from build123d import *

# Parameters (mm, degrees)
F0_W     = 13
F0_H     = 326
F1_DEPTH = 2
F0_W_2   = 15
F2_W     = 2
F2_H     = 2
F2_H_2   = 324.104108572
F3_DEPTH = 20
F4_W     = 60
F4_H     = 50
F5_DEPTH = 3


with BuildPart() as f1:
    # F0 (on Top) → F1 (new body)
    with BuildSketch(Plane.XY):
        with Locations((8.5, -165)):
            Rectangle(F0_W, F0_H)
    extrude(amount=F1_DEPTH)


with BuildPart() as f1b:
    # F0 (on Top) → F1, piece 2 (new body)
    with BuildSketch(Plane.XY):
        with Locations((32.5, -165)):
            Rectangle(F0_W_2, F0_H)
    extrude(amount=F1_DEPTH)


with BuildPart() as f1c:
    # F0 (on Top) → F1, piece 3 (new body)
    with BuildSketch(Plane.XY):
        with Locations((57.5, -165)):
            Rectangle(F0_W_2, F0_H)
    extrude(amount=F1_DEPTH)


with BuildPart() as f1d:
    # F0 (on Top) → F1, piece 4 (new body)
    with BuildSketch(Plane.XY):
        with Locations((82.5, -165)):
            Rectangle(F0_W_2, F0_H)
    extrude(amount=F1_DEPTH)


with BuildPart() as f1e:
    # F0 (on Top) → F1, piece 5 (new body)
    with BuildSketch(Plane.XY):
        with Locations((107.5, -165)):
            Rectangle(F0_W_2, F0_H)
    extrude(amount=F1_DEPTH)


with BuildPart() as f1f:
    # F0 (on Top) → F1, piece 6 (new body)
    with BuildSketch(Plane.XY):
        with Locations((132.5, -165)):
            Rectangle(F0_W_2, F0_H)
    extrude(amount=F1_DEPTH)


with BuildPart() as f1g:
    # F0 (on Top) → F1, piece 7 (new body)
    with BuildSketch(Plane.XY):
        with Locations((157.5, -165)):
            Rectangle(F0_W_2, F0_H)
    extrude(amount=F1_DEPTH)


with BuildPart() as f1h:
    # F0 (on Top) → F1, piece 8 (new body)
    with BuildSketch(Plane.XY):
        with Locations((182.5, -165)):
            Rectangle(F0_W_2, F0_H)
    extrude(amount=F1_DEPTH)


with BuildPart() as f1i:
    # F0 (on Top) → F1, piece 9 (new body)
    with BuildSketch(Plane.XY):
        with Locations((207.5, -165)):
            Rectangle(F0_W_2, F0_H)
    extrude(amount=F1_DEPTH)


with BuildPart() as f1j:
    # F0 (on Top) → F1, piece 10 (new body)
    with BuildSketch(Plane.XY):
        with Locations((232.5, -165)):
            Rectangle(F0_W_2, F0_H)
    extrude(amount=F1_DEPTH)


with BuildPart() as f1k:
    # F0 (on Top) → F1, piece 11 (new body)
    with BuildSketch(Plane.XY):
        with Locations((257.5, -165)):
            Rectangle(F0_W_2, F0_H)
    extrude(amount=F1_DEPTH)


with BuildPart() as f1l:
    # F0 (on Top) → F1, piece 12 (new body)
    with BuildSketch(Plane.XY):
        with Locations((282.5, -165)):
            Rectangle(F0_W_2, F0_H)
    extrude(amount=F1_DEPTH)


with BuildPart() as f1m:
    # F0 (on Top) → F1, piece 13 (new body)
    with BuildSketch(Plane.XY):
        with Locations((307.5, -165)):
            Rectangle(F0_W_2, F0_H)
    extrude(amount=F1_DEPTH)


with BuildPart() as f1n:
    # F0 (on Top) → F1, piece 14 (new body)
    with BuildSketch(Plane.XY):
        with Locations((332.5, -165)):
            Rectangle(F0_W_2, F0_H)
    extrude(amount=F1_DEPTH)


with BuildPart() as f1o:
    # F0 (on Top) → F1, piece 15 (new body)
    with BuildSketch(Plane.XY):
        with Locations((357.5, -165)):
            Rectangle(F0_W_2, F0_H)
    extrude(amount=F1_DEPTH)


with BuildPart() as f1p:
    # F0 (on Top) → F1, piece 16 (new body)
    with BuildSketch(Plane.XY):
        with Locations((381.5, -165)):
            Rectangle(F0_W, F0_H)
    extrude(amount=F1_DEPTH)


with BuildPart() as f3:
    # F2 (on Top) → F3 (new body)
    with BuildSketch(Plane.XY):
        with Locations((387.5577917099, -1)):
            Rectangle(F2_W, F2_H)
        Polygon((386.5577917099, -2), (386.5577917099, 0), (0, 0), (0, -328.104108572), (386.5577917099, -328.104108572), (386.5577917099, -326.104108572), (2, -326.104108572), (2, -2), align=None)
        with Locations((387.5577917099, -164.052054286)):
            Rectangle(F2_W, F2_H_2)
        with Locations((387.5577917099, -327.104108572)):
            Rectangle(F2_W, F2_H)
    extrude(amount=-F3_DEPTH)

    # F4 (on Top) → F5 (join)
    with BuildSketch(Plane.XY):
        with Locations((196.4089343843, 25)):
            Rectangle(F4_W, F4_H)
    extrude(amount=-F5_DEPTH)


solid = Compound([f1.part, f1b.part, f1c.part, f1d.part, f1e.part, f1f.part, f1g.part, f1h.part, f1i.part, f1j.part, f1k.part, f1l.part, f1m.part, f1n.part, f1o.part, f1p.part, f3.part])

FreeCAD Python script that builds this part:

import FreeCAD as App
import Part
import Sketcher
Q = App.Units.Quantity


def add_polygon(sketch, points):
    """Adds a closed chain of lines whose ends are joined by coincident constraints."""
    first, n = sketch.GeometryCount, len(points)
    for a, b in zip(points, points[1:] + points[:1]):
        sketch.addGeometry(Part.LineSegment(App.Vector(*a, 0), App.Vector(*b, 0)), False)
    for i in range(n):
        sketch.addConstraint(Sketcher.Constraint("Coincident", first + i, 2, first + (i + 1) % n, 1))

doc = App.newDocument("Part")
body = doc.addObject("PartDesign::Body", "Body")

sketch1 = body.newObject("Sketcher::SketchObject", "Sketch")
sketch1.AttachmentSupport = (doc.getObject("XY_Plane"), [""])
sketch1.MapMode = "FlatFace"
add_polygon(sketch1, [(2, -2), (2, -328), (15, -328), (15, -2)])
sketch1.addConstraint(Sketcher.Constraint("Vertical", 0))
sketch1.addConstraint(Sketcher.Constraint("Horizontal", 1))
sketch1.addConstraint(Sketcher.Constraint("Vertical", 2))
sketch1.addConstraint(Sketcher.Constraint("Horizontal", 3))
sketch1.addConstraint(Sketcher.Constraint("DistanceX", 1, 1, 1, 2, Q("13 mm")))
sketch1.addConstraint(Sketcher.Constraint("DistanceY", 0, 2, 0, 1, Q("326 mm")))
sketch1.addConstraint(Sketcher.Constraint("DistanceX", -1, 1, 0, 2, Q("2 mm")))
sketch1.addConstraint(Sketcher.Constraint("DistanceY", 0, 2, -1, 1, Q("328 mm")))
pad1 = body.newObject("PartDesign::Pad", "Pad")
pad1.Profile = sketch1
pad1.Length = 2
body2 = doc.addObject("PartDesign::Body", "Body001")

sketch2 = body2.newObject("Sketcher::SketchObject", "Sketch001")
sketch2.AttachmentSupport = (doc.getObject("XY_Plane001"), [""])
sketch2.MapMode = "FlatFace"
add_polygon(sketch2, [(25, -2), (25, -328), (40, -328), (40, -2)])
sketch2.addConstraint(Sketcher.Constraint("Vertical", 0))
sketch2.addConstraint(Sketcher.Constraint("Horizontal", 1))
sketch2.addConstraint(Sketcher.Constraint("Vertical", 2))
sketch2.addConstraint(Sketcher.Constraint("Horizontal", 3))
sketch2.addConstraint(Sketcher.Constraint("DistanceX", 1, 1, 1, 2, Q("15 mm")))
sketch2.addConstraint(Sketcher.Constraint("DistanceY", 0, 2, 0, 1, Q("326 mm")))
sketch2.addConstraint(Sketcher.Constraint("DistanceX", -1, 1, 0, 2, Q("25 mm")))
sketch2.addConstraint(Sketcher.Constraint("DistanceY", 0, 2, -1, 1, Q("328 mm")))
pad2 = body2.newObject("PartDesign::Pad", "Pad001")
pad2.Profile = sketch2
pad2.Length = 2
body3 = doc.addObject("PartDesign::Body", "Body002")

sketch3 = body3.newObject("Sketcher::SketchObject", "Sketch002")
sketch3.AttachmentSupport = (doc.getObject("XY_Plane002"), [""])
sketch3.MapMode = "FlatFace"
add_polygon(sketch3, [(50, -2), (50, -328), (65, -328), (65, -2)])
sketch3.addConstraint(Sketcher.Constraint("Vertical", 0))
sketch3.addConstraint(Sketcher.Constraint("Horizontal", 1))
sketch3.addConstraint(Sketcher.Constraint("Vertical", 2))
sketch3.addConstraint(Sketcher.Constraint("Horizontal", 3))
sketch3.addConstraint(Sketcher.Constraint("DistanceX", 1, 1, 1, 2, Q("15 mm")))
sketch3.addConstraint(Sketcher.Constraint("DistanceY", 0, 2, 0, 1, Q("326 mm")))
sketch3.addConstraint(Sketcher.Constraint("DistanceX", -1, 1, 0, 2, Q("50 mm")))
sketch3.addConstraint(Sketcher.Constraint("DistanceY", 0, 2, -1, 1, Q("328 mm")))
pad3 = body3.newObject("PartDesign::Pad", "Pad002")
pad3.Profile = sketch3
pad3.Length = 2
body4 = doc.addObject("PartDesign::Body", "Body003")

sketch4 = body4.newObject("Sketcher::SketchObject", "Sketch003")
sketch4.AttachmentSupport = (doc.getObject("XY_Plane003"), [""])
sketch4.MapMode = "FlatFace"
add_polygon(sketch4, [(75, -2), (75, -328), (90, -328), (90, -2)])
sketch4.addConstraint(Sketcher.Constraint("Vertical", 0))
sketch4.addConstraint(Sketcher.Constraint("Horizontal", 1))
sketch4.addConstraint(Sketcher.Constraint("Vertical", 2))
sketch4.addConstraint(Sketcher.Constraint("Horizontal", 3))
sketch4.addConstraint(Sketcher.Constraint("DistanceX", 1, 1, 1, 2, Q("15 mm")))
sketch4.addConstraint(Sketcher.Constraint("DistanceY", 0, 2, 0, 1, Q("326 mm")))
sketch4.addConstraint(Sketcher.Constraint("DistanceX", -1, 1, 0, 2, Q("75 mm")))
sketch4.addConstraint(Sketcher.Constraint("DistanceY", 0, 2, -1, 1, Q("328 mm")))
pad4 = body4.newObject("PartDesign::Pad", "Pad003")
pad4.Profile = sketch4
pad4.Length = 2
body5 = doc.addObject("PartDesign::Body", "Body004")

sketch5 = body5.newObject("Sketcher::SketchObject", "Sketch004")
sketch5.AttachmentSupport = (doc.getObject("XY_Plane004"), [""])
sketch5.MapMode = "FlatFace"
add_polygon(sketch5, [(100, -2), (100, -328), (115, -328), (115, -2)])
sketch5.addConstraint(Sketcher.Constraint("Vertical", 0))
sketch5.addConstraint(Sketcher.Constraint("Horizontal", 1))
sketch5.addConstraint(Sketcher.Constraint("Vertical", 2))
sketch5.addConstraint(Sketcher.Constraint("Horizontal", 3))
sketch5.addConstraint(Sketcher.Constraint("DistanceX", 1, 1, 1, 2, Q("15 mm")))
sketch5.addConstraint(Sketcher.Constraint("DistanceY", 0, 2, 0, 1, Q("326 mm")))
sketch5.addConstraint(Sketcher.Constraint("DistanceX", -1, 1, 0, 2, Q("100 mm")))
sketch5.addConstraint(Sketcher.Constraint("DistanceY", 0, 2, -1, 1, Q("328 mm")))
pad5 = body5.newObject("PartDesign::Pad", "Pad004")
pad5.Profile = sketch5
pad5.Length = 2
body6 = doc.addObject("PartDesign::Body", "Body005")

sketch6 = body6.newObject("Sketcher::SketchObject", "Sketch005")
sketch6.AttachmentSupport = (doc.getObject("XY_Plane005"), [""])
sketch6.MapMode = "FlatFace"
add_polygon(sketch6, [(125, -2), (125, -328), (140, -328), (140, -2)])
sketch6.addConstraint(Sketcher.Constraint("Vertical", 0))
sketch6.addConstraint(Sketcher.Constraint("Horizontal", 1))
sketch6.addConstraint(Sketcher.Constraint("Vertical", 2))
sketch6.addConstraint(Sketcher.Constraint("Horizontal", 3))
sketch6.addConstraint(Sketcher.Constraint("DistanceX", 1, 1, 1, 2, Q("15 mm")))
sketch6.addConstraint(Sketcher.Constraint("DistanceY", 0, 2, 0, 1, Q("326 mm")))
sketch6.addConstraint(Sketcher.Constraint("DistanceX", -1, 1, 0, 2, Q("125 mm")))
sketch6.addConstraint(Sketcher.Constraint("DistanceY", 0, 2, -1, 1, Q("328 mm")))
pad6 = body6.newObject("PartDesign::Pad", "Pad005")
pad6.Profile = sketch6
pad6.Length = 2
body7 = doc.addObject("PartDesign::Body", "Body006")

sketch7 = body7.newObject("Sketcher::SketchObject", "Sketch006")
sketch7.AttachmentSupport = (doc.getObject("XY_Plane006"), [""])
sketch7.MapMode = "FlatFace"
add_polygon(sketch7, [(150, -2), (150, -328), (165, -328), (165, -2)])
sketch7.addConstraint(Sketcher.Constraint("Vertical", 0))
sketch7.addConstraint(Sketcher.Constraint("Horizontal", 1))
sketch7.addConstraint(Sketcher.Constraint("Vertical", 2))
sketch7.addConstraint(Sketcher.Constraint("Horizontal", 3))
sketch7.addConstraint(Sketcher.Constraint("DistanceX", 1, 1, 1, 2, Q("15 mm")))
sketch7.addConstraint(Sketcher.Constraint("DistanceY", 0, 2, 0, 1, Q("326 mm")))
sketch7.addConstraint(Sketcher.Constraint("DistanceX", -1, 1, 0, 2, Q("150 mm")))
sketch7.addConstraint(Sketcher.Constraint("DistanceY", 0, 2, -1, 1, Q("328 mm")))
pad7 = body7.newObject("PartDesign::Pad", "Pad006")
pad7.Profile = sketch7
pad7.Length = 2
body8 = doc.addObject("PartDesign::Body", "Body007")

sketch8 = body8.newObject("Sketcher::SketchObject", "Sketch007")
sketch8.AttachmentSupport = (doc.getObject("XY_Plane007"), [""])
sketch8.MapMode = "FlatFace"
add_polygon(sketch8, [(175, -2), (175, -328), (190, -328), (190, -2)])
sketch8.addConstraint(Sketcher.Constraint("Vertical", 0))
sketch8.addConstraint(Sketcher.Constraint("Horizontal", 1))
sketch8.addConstraint(Sketcher.Constraint("Vertical", 2))
sketch8.addConstraint(Sketcher.Constraint("Horizontal", 3))
sketch8.addConstraint(Sketcher.Constraint("DistanceX", 1, 1, 1, 2, Q("15 mm")))
sketch8.addConstraint(Sketcher.Constraint("DistanceY", 0, 2, 0, 1, Q("326 mm")))
sketch8.addConstraint(Sketcher.Constraint("DistanceX", -1, 1, 0, 2, Q("175 mm")))
sketch8.addConstraint(Sketcher.Constraint("DistanceY", 0, 2, -1, 1, Q("328 mm")))
pad8 = body8.newObject("PartDesign::Pad", "Pad007")
pad8.Profile = sketch8
pad8.Length = 2
body9 = doc.addObject("PartDesign::Body", "Body008")

sketch9 = body9.newObject("Sketcher::SketchObject", "Sketch008")
sketch9.AttachmentSupport = (doc.getObject("XY_Plane008"), [""])
sketch9.MapMode = "FlatFace"
add_polygon(sketch9, [(200, -2), (200, -328), (215, -328), (215, -2)])
sketch9.addConstraint(Sketcher.Constraint("Vertical", 0))
sketch9.addConstraint(Sketcher.Constraint("Horizontal", 1))
sketch9.addConstraint(Sketcher.Constraint("Vertical", 2))
sketch9.addConstraint(Sketcher.Constraint("Horizontal", 3))
sketch9.addConstraint(Sketcher.Constraint("DistanceX", 1, 1, 1, 2, Q("15 mm")))
sketch9.addConstraint(Sketcher.Constraint("DistanceY", 0, 2, 0, 1, Q("326 mm")))
sketch9.addConstraint(Sketcher.Constraint("DistanceX", -1, 1, 0, 2, Q("200 mm")))
sketch9.addConstraint(Sketcher.Constraint("DistanceY", 0, 2, -1, 1, Q("328 mm")))
pad9 = body9.newObject("PartDesign::Pad", "Pad008")
pad9.Profile = sketch9
pad9.Length = 2
body10 = doc.addObject("PartDesign::Body", "Body009")

sketch10 = body10.newObject("Sketcher::SketchObject", "Sketch009")
sketch10.AttachmentSupport = (doc.getObject("XY_Plane009"), [""])
sketch10.MapMode = "FlatFace"
add_polygon(sketch10, [(225, -2), (225, -328), (240, -328), (240, -2)])
sketch10.addConstraint(Sketcher.Constraint("Vertical", 0))
sketch10.addConstraint(Sketcher.Constraint("Horizontal", 1))
sketch10.addConstraint(Sketcher.Constraint("Vertical", 2))
sketch10.addConstraint(Sketcher.Constraint("Horizontal", 3))
sketch10.addConstraint(Sketcher.Constraint("DistanceX", 1, 1, 1, 2, Q("15 mm")))
sketch10.addConstraint(Sketcher.Constraint("DistanceY", 0, 2, 0, 1, Q("326 mm")))
sketch10.addConstraint(Sketcher.Constraint("DistanceX", -1, 1, 0, 2, Q("225 mm")))
sketch10.addConstraint(Sketcher.Constraint("DistanceY", 0, 2, -1, 1, Q("328 mm")))
pad10 = body10.newObject("PartDesign::Pad", "Pad009")
pad10.Profile = sketch10
pad10.Length = 2
body11 = doc.addObject("PartDesign::Body", "Body010")

sketch11 = body11.newObject("Sketcher::SketchObject", "Sketch010")
sketch11.AttachmentSupport = (doc.getObject("XY_Plane010"), [""])
sketch11.MapMode = "FlatFace"
add_polygon(sketch11, [(250, -2), (250, -328), (265, -328), (265, -2)])
sketch11.addConstraint(Sketcher.Constraint("Vertical", 0))
sketch11.addConstraint(Sketcher.Constraint("Horizontal", 1))
sketch11.addConstraint(Sketcher.Constraint("Vertical", 2))
sketch11.addConstraint(Sketcher.Constraint("Horizontal", 3))
sketch11.addConstraint(Sketcher.Constraint("DistanceX", 1, 1, 1, 2, Q("15 mm")))
sketch11.addConstraint(Sketcher.Constraint("DistanceY", 0, 2, 0, 1, Q("326 mm")))
sketch11.addConstraint(Sketcher.Constraint("DistanceX", -1, 1, 0, 2, Q("250 mm")))
sketch11.addConstraint(Sketcher.Constraint("DistanceY", 0, 2, -1, 1, Q("328 mm")))
pad11 = body11.newObject("PartDesign::Pad", "Pad010")
pad11.Profile = sketch11
pad11.Length = 2
body12 = doc.addObject("PartDesign::Body", "Body011")

sketch12 = body12.newObject("Sketcher::SketchObject", "Sketch011")
sketch12.AttachmentSupport = (doc.getObject("XY_Plane011"), [""])
sketch12.MapMode = "FlatFace"
add_polygon(sketch12, [(275, -2), (275, -328), (290, -328), (290, -2)])
sketch12.addConstraint(Sketcher.Constraint("Vertical", 0))
sketch12.addConstraint(Sketcher.Constraint("Horizontal", 1))
sketch12.addConstraint(Sketcher.Constraint("Vertical", 2))
sketch12.addConstraint(Sketcher.Constraint("Horizontal", 3))
sketch12.addConstraint(Sketcher.Constraint("DistanceX", 1, 1, 1, 2, Q("15 mm")))
sketch12.addConstraint(Sketcher.Constraint("DistanceY", 0, 2, 0, 1, Q("326 mm")))
sketch12.addConstraint(Sketcher.Constraint("DistanceX", -1, 1, 0, 2, Q("275 mm")))
sketch12.addConstraint(Sketcher.Constraint("DistanceY", 0, 2, -1, 1, Q("328 mm")))
pad12 = body12.newObject("PartDesign::Pad", "Pad011")
pad12.Profile = sketch12
pad12.Length = 2
body13 = doc.addObject("PartDesign::Body", "Body012")

sketch13 = body13.newObject("Sketcher::SketchObject", "Sketch012")
sketch13.AttachmentSupport = (doc.getObject("XY_Plane012"), [""])
sketch13.MapMode = "FlatFace"
add_polygon(sketch13, [(300, -2), (300, -328), (315, -328), (315, -2)])
sketch13.addConstraint(Sketcher.Constraint("Vertical", 0))
sketch13.addConstraint(Sketcher.Constraint("Horizontal", 1))
sketch13.addConstraint(Sketcher.Constraint("Vertical", 2))
sketch13.addConstraint(Sketcher.Constraint("Horizontal", 3))
sketch13.addConstraint(Sketcher.Constraint("DistanceX", 1, 1, 1, 2, Q("15 mm")))
sketch13.addConstraint(Sketcher.Constraint("DistanceY", 0, 2, 0, 1, Q("326 mm")))
sketch13.addConstraint(Sketcher.Constraint("DistanceX", -1, 1, 0, 2, Q("300 mm")))
sketch13.addConstraint(Sketcher.Constraint("DistanceY", 0, 2, -1, 1, Q("328 mm")))
pad13 = body13.newObject("PartDesign::Pad", "Pad012")
pad13.Profile = sketch13
pad13.Length = 2
body14 = doc.addObject("PartDesign::Body", "Body013")

sketch14 = body14.newObject("Sketcher::SketchObject", "Sketch013")
sketch14.AttachmentSupport = (doc.getObject("XY_Plane013"), [""])
sketch14.MapMode = "FlatFace"
add_polygon(sketch14, [(325, -2), (325, -328), (340, -328), (340, -2)])
sketch14.addConstraint(Sketcher.Constraint("Vertical", 0))
sketch14.addConstraint(Sketcher.Constraint("Horizontal", 1))
sketch14.addConstraint(Sketcher.Constraint("Vertical", 2))
sketch14.addConstraint(Sketcher.Constraint("Horizontal", 3))
sketch14.addConstraint(Sketcher.Constraint("DistanceX", 1, 1, 1, 2, Q("15 mm")))
sketch14.addConstraint(Sketcher.Constraint("DistanceY", 0, 2, 0, 1, Q("326 mm")))
sketch14.addConstraint(Sketcher.Constraint("DistanceX", -1, 1, 0, 2, Q("325 mm")))
sketch14.addConstraint(Sketcher.Constraint("DistanceY", 0, 2, -1, 1, Q("328 mm")))
pad14 = body14.newObject("PartDesign::Pad", "Pad013")
pad14.Profile = sketch14
pad14.Length = 2
body15 = doc.addObject("PartDesign::Body", "Body014")

sketch15 = body15.newObject("Sketcher::SketchObject", "Sketch014")
sketch15.AttachmentSupport = (doc.getObject("XY_Plane014"), [""])
sketch15.MapMode = "FlatFace"
add_polygon(sketch15, [(350, -2), (350, -328), (365, -328), (365, -2)])
sketch15.addConstraint(Sketcher.Constraint("Vertical", 0))
sketch15.addConstraint(Sketcher.Constraint("Horizontal", 1))
sketch15.addConstraint(Sketcher.Constraint("Vertical", 2))
sketch15.addConstraint(Sketcher.Constraint("Horizontal", 3))
sketch15.addConstraint(Sketcher.Constraint("DistanceX", 1, 1, 1, 2, Q("15 mm")))
sketch15.addConstraint(Sketcher.Constraint("DistanceY", 0, 2, 0, 1, Q("326 mm")))
sketch15.addConstraint(Sketcher.Constraint("DistanceX", -1, 1, 0, 2, Q("350 mm")))
sketch15.addConstraint(Sketcher.Constraint("DistanceY", 0, 2, -1, 1, Q("328 mm")))
pad15 = body15.newObject("PartDesign::Pad", "Pad014")
pad15.Profile = sketch15
pad15.Length = 2
body16 = doc.addObject("PartDesign::Body", "Body015")

sketch16 = body16.newObject("Sketcher::SketchObject", "Sketch015")
sketch16.AttachmentSupport = (doc.getObject("XY_Plane015"), [""])
sketch16.MapMode = "FlatFace"
add_polygon(sketch16, [(375, -2), (375, -328), (388, -328), (388, -2)])
sketch16.addConstraint(Sketcher.Constraint("Vertical", 0))
sketch16.addConstraint(Sketcher.Constraint("Horizontal", 1))
sketch16.addConstraint(Sketcher.Constraint("Vertical", 2))
sketch16.addConstraint(Sketcher.Constraint("Horizontal", 3))
sketch16.addConstraint(Sketcher.Constraint("DistanceX", 1, 1, 1, 2, Q("13 mm")))
sketch16.addConstraint(Sketcher.Constraint("DistanceY", 0, 2, 0, 1, Q("326 mm")))
sketch16.addConstraint(Sketcher.Constraint("DistanceX", -1, 1, 0, 2, Q("375 mm")))
sketch16.addConstraint(Sketcher.Constraint("DistanceY", 0, 2, -1, 1, Q("328 mm")))
pad16 = body16.newObject("PartDesign::Pad", "Pad015")
pad16.Profile = sketch16
pad16.Length = 2
body17 = doc.addObject("PartDesign::Body", "Body016")

sketch17 = body17.newObject("Sketcher::SketchObject", "Sketch016")
sketch17.AttachmentSupport = (doc.getObject("XY_Plane016"), [""])
sketch17.MapMode = "FlatFace"
add_polygon(sketch17, [(0, -328), (389, -328), (389, 0), (0, 0)])
add_polygon(sketch17, [(387, -2), (387, -326), (2, -326), (2, -2)])
sketch17.addConstraint(Sketcher.Constraint("Horizontal", 0))
sketch17.addConstraint(Sketcher.Constraint("Vertical", 1))
sketch17.addConstraint(Sketcher.Constraint("Horizontal", 2))
sketch17.addConstraint(Sketcher.Constraint("Vertical", 3))
sketch17.addConstraint(Sketcher.Constraint("Vertical", 4))
sketch17.addConstraint(Sketcher.Constraint("Horizontal", 5))
sketch17.addConstraint(Sketcher.Constraint("Vertical", 6))
sketch17.addConstraint(Sketcher.Constraint("Horizontal", 7))
sketch17.addConstraint(Sketcher.Constraint("Coincident", 2, 2, -1, 1))
sketch17.addConstraint(Sketcher.Constraint("DistanceX", -1, 1, 5, 2, Q("2 mm")))
sketch17.addConstraint(Sketcher.Constraint("DistanceY", 6, 2, -1, 1, Q("2 mm")))
sketch17.addConstraint(Sketcher.Constraint("DistanceX", 4, 2, 0, 2, Q("2 mm")))
sketch17.addConstraint(Sketcher.Constraint("DistanceY", 0, 2, 4, 2, Q("2 mm")))
sketch17.addConstraint(Sketcher.Constraint("DistanceX", 0, 1, 0, 2, Q("388.557792 mm")))
sketch17.addConstraint(Sketcher.Constraint("DistanceY", 1, 1, 1, 2, Q("328.104109 mm")))
pad17 = body17.newObject("PartDesign::Pad", "Pad016")
pad17.Profile = sketch17
pad17.Length = 20
pad17.Reversed = True

sketch18 = body17.newObject("Sketcher::SketchObject", "Sketch017")
sketch18.AttachmentSupport = (doc.getObject("XY_Plane016"), [""])
sketch18.MapMode = "FlatFace"
add_polygon(sketch18, [(166, 50), (166, 0), (226, 0), (226, 50)])
sketch18.addConstraint(Sketcher.Constraint("Vertical", 0))
sketch18.addConstraint(Sketcher.Constraint("Horizontal", 1))
sketch18.addConstraint(Sketcher.Constraint("Vertical", 2))
sketch18.addConstraint(Sketcher.Constraint("Horizontal", 3))
sketch18.addConstraint(Sketcher.Constraint("PointOnObject", 0, 2, -1))
sketch18.addConstraint(Sketcher.Constraint("DistanceX", 1, 1, 1, 2, Q("60 mm")))
sketch18.addConstraint(Sketcher.Constraint("DistanceY", 0, 2, 0, 1, Q("50 mm")))
sketch18.addConstraint(Sketcher.Constraint("DistanceX", -1, 1, 0, 2, Q("166.408934 mm")))
pad18 = body17.newObject("PartDesign::Pad", "Pad017")
pad18.Profile = sketch18
pad18.Length = 3
pad18.Reversed = True

doc.recompute()
